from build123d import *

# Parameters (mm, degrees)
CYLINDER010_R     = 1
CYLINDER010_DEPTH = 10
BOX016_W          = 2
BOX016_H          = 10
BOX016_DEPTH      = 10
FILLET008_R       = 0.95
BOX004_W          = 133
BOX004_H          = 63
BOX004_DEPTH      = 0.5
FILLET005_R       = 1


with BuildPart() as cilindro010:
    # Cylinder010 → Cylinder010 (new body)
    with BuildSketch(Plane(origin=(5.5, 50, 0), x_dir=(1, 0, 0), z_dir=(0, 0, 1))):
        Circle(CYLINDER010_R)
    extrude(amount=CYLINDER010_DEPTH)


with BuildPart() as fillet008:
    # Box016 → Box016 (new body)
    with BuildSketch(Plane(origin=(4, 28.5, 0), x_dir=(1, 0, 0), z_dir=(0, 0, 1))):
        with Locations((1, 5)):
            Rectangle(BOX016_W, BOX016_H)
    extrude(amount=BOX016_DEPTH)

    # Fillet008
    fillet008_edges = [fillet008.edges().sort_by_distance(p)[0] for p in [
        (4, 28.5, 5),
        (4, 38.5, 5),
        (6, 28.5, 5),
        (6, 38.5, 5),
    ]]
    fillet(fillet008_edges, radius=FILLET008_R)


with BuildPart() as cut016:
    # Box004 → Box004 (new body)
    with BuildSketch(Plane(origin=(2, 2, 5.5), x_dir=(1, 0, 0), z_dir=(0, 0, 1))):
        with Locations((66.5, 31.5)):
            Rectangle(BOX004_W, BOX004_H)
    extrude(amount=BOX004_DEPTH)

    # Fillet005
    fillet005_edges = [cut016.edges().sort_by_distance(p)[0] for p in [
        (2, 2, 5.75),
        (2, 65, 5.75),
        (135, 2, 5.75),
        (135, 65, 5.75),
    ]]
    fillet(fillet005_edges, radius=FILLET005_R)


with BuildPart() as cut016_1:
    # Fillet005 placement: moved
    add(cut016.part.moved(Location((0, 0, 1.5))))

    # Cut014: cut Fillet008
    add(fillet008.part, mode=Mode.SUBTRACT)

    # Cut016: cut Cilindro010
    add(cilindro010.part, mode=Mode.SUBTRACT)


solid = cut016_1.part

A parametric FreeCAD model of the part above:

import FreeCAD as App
import Part
import Sketcher

V = App.Vector


def edges_at(feature, points):
    """Names of the edges that pass closest to the given points."""
    edges = feature.Shape.Edges
    near = lambda p: min(range(len(edges)), key=lambda i: edges[i].distToShape(Part.Vertex(*p))[0])
    return sorted({f"Edge{near(p) + 1}" for p in points})


def add_polygon(sketch, points):
    """Adds a closed chain of lines whose ends are joined by coincident constraints."""
    first, n = sketch.GeometryCount, len(points)
    for a, b in zip(points, points[1:] + points[:1]):
        sketch.addGeometry(Part.LineSegment(App.Vector(*a, 0), App.Vector(*b, 0)), False)
    for i in range(n):
        sketch.addConstraint(Sketcher.Constraint("Coincident", first + i, 2, first + (i + 1) % n, 1))

doc = App.newDocument("Part")
params = doc.addObject("Spreadsheet::Sheet", "Params")
for row, (alias, value) in enumerate([
    ("sketch1_diameter", "2 mm"),
    ("pad1_length", "10 mm"),
    ("sketch2_width", "2 mm"),
    ("sketch2_height", "10 mm"),
    ("pad2_length", "10 mm"),
    ("fillet_radius", "0.95 mm"),
    ("sketch3_width", "133 mm"),
    ("sketch3_height", "63 mm"),
    ("pad3_length", "0.5 mm"),
    ("fillet2_radius", "1 mm"),
], start=1):
    params.set(f"A{row}", alias)
    params.set(f"B{row}", "=" + value)
    params.setAlias(f"B{row}", alias)

body = doc.addObject("PartDesign::Body", "Body")

# Sketch on XY plane
sketch1 = doc.addObject("Sketcher::SketchObject", "Sketch")
body.addObject(sketch1)
sketch1.AttachmentSupport = (doc.XY_Plane, [""])
sketch1.MapMode = "FlatFace"
sketch1.addGeometry(Part.Circle(V(5.5, 50, 0), V(0, 0, 1), 1), False)
sketch1.addConstraint([
    Sketcher.Constraint("Diameter", 0, 2.0),
    Sketcher.Constraint("DistanceY", -1, 1, 0, 3, 50.0),
    Sketcher.Constraint("DistanceX", -1, 1, 0, 3, 5.5),
])
sketch1.setExpression("Constraints[0]", "Params.sketch1_diameter")
pad1 = doc.addObject("PartDesign::Pad", "Pad")
body.addObject(pad1)
pad1.Profile = sketch1
pad1.setExpression("Length", "Params.pad1_length")
body2 = doc.addObject("PartDesign::Body", "Body001")

# Sketch on XY plane
sketch2 = doc.addObject("Sketcher::SketchObject", "Sketch001")
body2.addObject(sketch2)
sketch2.AttachmentSupport = (doc.getObject("XY_Plane001"), [""])
sketch2.MapMode = "FlatFace"
add_polygon(sketch2, [(4, 38.5), (4, 28.5), (6, 28.5), (6, 38.5)])  # lines 0-3
sketch2.addConstraint([
    Sketcher.Constraint("Vertical", 0),
    Sketcher.Constraint("Horizontal", 1),
    Sketcher.Constraint("Vertical", 2),
    Sketcher.Constraint("Horizontal", 3),
    Sketcher.Constraint("DistanceX", 1, 1, 1, 2, 2.0),
    Sketcher.Constraint("DistanceY", 0, 2, 0, 1, 10.0),
    Sketcher.Constraint("DistanceX", -1, 1, 0, 2, 4.0),
    Sketcher.Constraint("DistanceY", -1, 1, 0, 2, 28.5),
])
sketch2.setExpression("Constraints[8]", "Params.sketch2_width")
sketch2.setExpression("Constraints[9]", "Params.sketch2_height")
pad2 = doc.addObject("PartDesign::Pad", "Pad001")
body2.addObject(pad2)
pad2.Profile = sketch2
pad2.setExpression("Length", "Params.pad2_length")
doc.recompute()

fillet = doc.addObject("PartDesign::Fillet", "Fillet")
body2.addObject(fillet)
fillet.Base = (pad2, edges_at(pad2, [
    (4, 28.5, 5),
    (4, 38.5, 5),
    (6, 28.5, 5),
    (6, 38.5, 5),
]))
fillet.setExpression("Radius", "Params.fillet_radius")
body3 = doc.addObject("PartDesign::Body", "Body002")

# Sketch on XY plane
sketch3 = doc.addObject("Sketcher::SketchObject", "Sketch002")
body3.addObject(sketch3)
sketch3.AttachmentSupport = (doc.getObject("XY_Plane002"), [""])
sketch3.MapMode = "FlatFace"
sketch3.AttachmentOffset = App.Placement(V(0, 0, 5.5), App.Rotation())
add_polygon(sketch3, [(2, 65), (2, 2), (135, 2), (135, 65)])  # lines 0-3
sketch3.addConstraint([
    Sketcher.Constraint("Vertical", 0),
    Sketcher.Constraint("Horizontal", 1),
    Sketcher.Constraint("Vertical", 2),
    Sketcher.Constraint("Horizontal", 3),
    Sketcher.Constraint("DistanceX", 1, 1, 1, 2, 133.0),
    Sketcher.Constraint("DistanceY", 0, 2, 0, 1, 63.0),
    Sketcher.Constraint("DistanceX", -1, 1, 0, 2, 2.0),
    Sketcher.Constraint("DistanceY", -1, 1, 0, 2, 2.0),
])
sketch3.setExpression("Constraints[8]", "Params.sketch3_width")
sketch3.setExpression("Constraints[9]", "Params.sketch3_height")
pad3 = doc.addObject("PartDesign::Pad", "Pad002")
body3.addObject(pad3)
pad3.Profile = sketch3
pad3.setExpression("Length", "Params.pad3_length")
doc.recompute()

fillet2 = doc.addObject("PartDesign::Fillet", "Fillet001")
body3.addObject(fillet2)
fillet2.Base = (pad3, edges_at(pad3, [
    (2, 2, 5.75),
    (2, 65, 5.75),
    (135, 2, 5.75),
    (135, 65, 5.75),
]))
fillet2.setExpression("Radius", "Params.fillet2_radius")
body4 = doc.addObject("PartDesign::Body", "Body003")
doc.recompute()

body3.Placement = App.Placement(V(0, 0, 1.5), App.Rotation(V(0, 0, 1), 0))
boolean = doc.addObject("PartDesign::Boolean", "Boolean")
body4.addObject(boolean)
boolean.Type = "Fuse"
boolean.addObjects([body3])
doc.recompute()

boolean2 = doc.addObject("PartDesign::Boolean", "Boolean001")
body4.addObject(boolean2)
boolean2.Type = "Cut"
boolean2.addObjects([body2])
doc.recompute()

boolean3 = doc.addObject("PartDesign::Boolean", "Boolean002")
body4.addObject(boolean3)
boolean3.Type = "Cut"
boolean3.addObjects([body])

doc.recompute()
